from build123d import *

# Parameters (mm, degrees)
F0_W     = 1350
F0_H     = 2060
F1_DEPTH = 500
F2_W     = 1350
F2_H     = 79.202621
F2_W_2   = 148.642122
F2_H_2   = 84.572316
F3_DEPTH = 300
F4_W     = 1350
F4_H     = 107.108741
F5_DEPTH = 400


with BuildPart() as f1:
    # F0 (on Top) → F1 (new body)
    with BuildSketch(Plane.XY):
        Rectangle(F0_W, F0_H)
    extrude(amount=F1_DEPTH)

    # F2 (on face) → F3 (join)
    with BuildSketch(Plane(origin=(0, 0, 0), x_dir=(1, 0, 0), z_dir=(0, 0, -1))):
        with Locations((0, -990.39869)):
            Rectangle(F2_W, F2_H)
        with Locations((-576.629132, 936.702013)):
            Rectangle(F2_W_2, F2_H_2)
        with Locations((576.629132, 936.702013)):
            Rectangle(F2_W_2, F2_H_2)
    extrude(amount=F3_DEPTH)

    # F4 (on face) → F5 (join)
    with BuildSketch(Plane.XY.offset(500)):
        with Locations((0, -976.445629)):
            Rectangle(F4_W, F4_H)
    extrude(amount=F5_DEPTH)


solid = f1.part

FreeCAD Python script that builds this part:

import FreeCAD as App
import Part
import Sketcher

V = App.Vector

doc = App.newDocument("Part")
body = doc.addObject("PartDesign::Body", "Body")

# Sketch on XY plane
sketch1 = doc.addObject("Sketcher::SketchObject", "Sketch")
body.addObject(sketch1)
sketch1.AttachmentSupport = (doc.XY_Plane, [""])
sketch1.MapMode = "FlatFace"
sketch1.addGeometry([
    Part.LineSegment(V(-675, 1030, 0), V(-675, -1030, 0)),
    Part.LineSegment(V(-675, -1030, 0), V(675, -1030, 0)),
    Part.LineSegment(V(675, -1030, 0), V(675, 1030, 0)),
    Part.LineSegment(V(675, 1030, 0), V(-675, 1030, 0)),
], False)
sketch1.addConstraint([
    Sketcher.Constraint("Coincident", 0, 2, 1, 1),
    Sketcher.Constraint("Coincident", 1, 2, 2, 1),
    Sketcher.Constraint("Coincident", 2, 2, 3, 1),
    Sketcher.Constraint("Coincident", 3, 2, 0, 1),
    Sketcher.Constraint("Vertical", 0),
    Sketcher.Constraint("Horizontal", 1),
    Sketcher.Constraint("Vertical", 2),
    Sketcher.Constraint("Horizontal", 3),
    Sketcher.Constraint("Symmetric", 0, 2, 2, 2, -1, 1),
    Sketcher.Constraint("DistanceX", 1, 1, 1, 2, 1350.0),
    Sketcher.Constraint("DistanceY", 0, 2, 0, 1, 2060.0),
])
pad1 = doc.addObject("PartDesign::Pad", "Pad")
body.addObject(pad1)
pad1.Profile = sketch1
pad1.Length = 500

# Sketch on XY plane
sketch2 = doc.addObject("Sketcher::SketchObject", "Sketch001")
body.addObject(sketch2)
sketch2.AttachmentSupport = (doc.XY_Plane, [""])
sketch2.MapMode = "FlatFace"
sketch2.addGeometry([
    Part.LineSegment(V(-675, 951, 0), V(-675, 1030, 0)),  # 0
    Part.LineSegment(V(-675, 1030, 0), V(675, 1030, 0)),  # 1
    Part.LineSegment(V(675, 1030, 0), V(675, 951, 0)),  # 2
    Part.LineSegment(V(675, 951, 0), V(-675, 951, 0)),  # 3
    Part.LineSegment(V(-651, -979, 0), V(-651, -894, 0)),  # 4
    Part.LineSegment(V(-651, -894, 0), V(-502, -894, 0)),  # 5
    Part.LineSegment(V(-502, -894, 0), V(-502, -979, 0)),  # 6
    Part.LineSegment(V(-502, -979, 0), V(-651, -979, 0)),  # 7
    Part.LineSegment(V(502, -979, 0), V(502, -894, 0)),  # 8
    Part.LineSegment(V(502, -894, 0), V(651, -894, 0)),  # 9
    Part.LineSegment(V(651, -894, 0), V(651, -979, 0)),  # 10
    Part.LineSegment(V(651, -979, 0), V(502, -979, 0)),  # 11
], False)
sketch2.addConstraint([
    Sketcher.Constraint("Coincident", 0, 2, 1, 1),
    Sketcher.Constraint("Coincident", 1, 2, 2, 1),
    Sketcher.Constraint("Coincident", 2, 2, 3, 1),
    Sketcher.Constraint("Coincident", 3, 2, 0, 1),
    Sketcher.Constraint("Coincident", 4, 2, 5, 1),
    Sketcher.Constraint("Coincident", 5, 2, 6, 1),
    Sketcher.Constraint("Coincident", 6, 2, 7, 1),
    Sketcher.Constraint("Coincident", 7, 2, 4, 1),
    Sketcher.Constraint("Coincident", 8, 2, 9, 1),
    Sketcher.Constraint("Coincident", 9, 2, 10, 1),
    Sketcher.Constraint("Coincident", 10, 2, 11, 1),
    Sketcher.Constraint("Coincident", 11, 2, 8, 1),
    Sketcher.Constraint("Vertical", 0),
    Sketcher.Constraint("Horizontal", 1),
    Sketcher.Constraint("Vertical", 2),
    Sketcher.Constraint("Horizontal", 3),
    Sketcher.Constraint("Vertical", 4),
    Sketcher.Constraint("Horizontal", 5),
    Sketcher.Constraint("Vertical", 6),
    Sketcher.Constraint("Horizontal", 7),
    Sketcher.Constraint("Vertical", 8),
    Sketcher.Constraint("Horizontal", 9),
    Sketcher.Constraint("Vertical", 10),
    Sketcher.Constraint("Horizontal", 11),
    Sketcher.Constraint("Symmetric", 5, 2, 8, 2, -2),
    Sketcher.Constraint("Symmetric", 7, 2, 10, 2, -2),
    Sketcher.Constraint("DistanceX", 1, 1, 1, 2, 1350.0),
    Sketcher.Constraint("DistanceX", 0, 2, -1, 1, 675.0),
    Sketcher.Constraint("DistanceY", -1, 1, 0, 2, 1030.0),
    Sketcher.Constraint("DistanceY", 0, 1, 0, 2, 79.202621),
    Sketcher.Constraint("DistanceX", 5, 1, 5, 2, 148.642122),
    Sketcher.Constraint("DistanceY", 4, 1, 4, 2, 84.572316),
    Sketcher.Constraint("DistanceX", 5, 2, -1, 1, 502.308071),
    Sketcher.Constraint("DistanceY", 6, 2, -1, 1, 978.988171),
])
pad2 = doc.addObject("PartDesign::Pad", "Pad001")
body.addObject(pad2)
pad2.Profile = sketch2
pad2.Length = 300
pad2.Reversed = True

# Sketch on XY plane
sketch3 = doc.addObject("Sketcher::SketchObject", "Sketch002")
body.addObject(sketch3)
sketch3.AttachmentSupport = (doc.XY_Plane, [""])
sketch3.MapMode = "FlatFace"
sketch3.AttachmentOffset = App.Placement(V(0, 0, 500), App.Rotation())
sketch3.addGeometry([
    Part.LineSegment(V(-675, -923, 0), V(-675, -1030, 0)),
    Part.LineSegment(V(-675, -1030, 0), V(675, -1030, 0)),
    Part.LineSegment(V(675, -1030, 0), V(675, -923, 0)),
    Part.LineSegment(V(675, -923, 0), V(-675, -923, 0)),
], False)
sketch3.addConstraint([
    Sketcher.Constraint("Coincident", 0, 2, 1, 1),
    Sketcher.Constraint("Coincident", 1, 2, 2, 1),
    Sketcher.Constraint("Coincident", 2, 2, 3, 1),
    Sketcher.Constraint("Coincident", 3, 2, 0, 1),
    Sketcher.Constraint("Vertical", 0),
    Sketcher.Constraint("Horizontal", 1),
    Sketcher.Constraint("Vertical", 2),
    Sketcher.Constraint("Horizontal", 3),
    Sketcher.Constraint("DistanceX", 1, 1, 1, 2, 1350.0),
    Sketcher.Constraint("DistanceX", 0, 2, -1, 1, 675.0),
    Sketcher.Constraint("DistanceY", 0, 2, -1, 1, 1030.0),
    Sketcher.Constraint("DistanceY", 0, 2, 0, 1, 107.108741),
])
pad3 = doc.addObject("PartDesign::Pad", "Pad002")
body.addObject(pad3)
pad3.Profile = sketch3
pad3.Length = 400

doc.recompute()
